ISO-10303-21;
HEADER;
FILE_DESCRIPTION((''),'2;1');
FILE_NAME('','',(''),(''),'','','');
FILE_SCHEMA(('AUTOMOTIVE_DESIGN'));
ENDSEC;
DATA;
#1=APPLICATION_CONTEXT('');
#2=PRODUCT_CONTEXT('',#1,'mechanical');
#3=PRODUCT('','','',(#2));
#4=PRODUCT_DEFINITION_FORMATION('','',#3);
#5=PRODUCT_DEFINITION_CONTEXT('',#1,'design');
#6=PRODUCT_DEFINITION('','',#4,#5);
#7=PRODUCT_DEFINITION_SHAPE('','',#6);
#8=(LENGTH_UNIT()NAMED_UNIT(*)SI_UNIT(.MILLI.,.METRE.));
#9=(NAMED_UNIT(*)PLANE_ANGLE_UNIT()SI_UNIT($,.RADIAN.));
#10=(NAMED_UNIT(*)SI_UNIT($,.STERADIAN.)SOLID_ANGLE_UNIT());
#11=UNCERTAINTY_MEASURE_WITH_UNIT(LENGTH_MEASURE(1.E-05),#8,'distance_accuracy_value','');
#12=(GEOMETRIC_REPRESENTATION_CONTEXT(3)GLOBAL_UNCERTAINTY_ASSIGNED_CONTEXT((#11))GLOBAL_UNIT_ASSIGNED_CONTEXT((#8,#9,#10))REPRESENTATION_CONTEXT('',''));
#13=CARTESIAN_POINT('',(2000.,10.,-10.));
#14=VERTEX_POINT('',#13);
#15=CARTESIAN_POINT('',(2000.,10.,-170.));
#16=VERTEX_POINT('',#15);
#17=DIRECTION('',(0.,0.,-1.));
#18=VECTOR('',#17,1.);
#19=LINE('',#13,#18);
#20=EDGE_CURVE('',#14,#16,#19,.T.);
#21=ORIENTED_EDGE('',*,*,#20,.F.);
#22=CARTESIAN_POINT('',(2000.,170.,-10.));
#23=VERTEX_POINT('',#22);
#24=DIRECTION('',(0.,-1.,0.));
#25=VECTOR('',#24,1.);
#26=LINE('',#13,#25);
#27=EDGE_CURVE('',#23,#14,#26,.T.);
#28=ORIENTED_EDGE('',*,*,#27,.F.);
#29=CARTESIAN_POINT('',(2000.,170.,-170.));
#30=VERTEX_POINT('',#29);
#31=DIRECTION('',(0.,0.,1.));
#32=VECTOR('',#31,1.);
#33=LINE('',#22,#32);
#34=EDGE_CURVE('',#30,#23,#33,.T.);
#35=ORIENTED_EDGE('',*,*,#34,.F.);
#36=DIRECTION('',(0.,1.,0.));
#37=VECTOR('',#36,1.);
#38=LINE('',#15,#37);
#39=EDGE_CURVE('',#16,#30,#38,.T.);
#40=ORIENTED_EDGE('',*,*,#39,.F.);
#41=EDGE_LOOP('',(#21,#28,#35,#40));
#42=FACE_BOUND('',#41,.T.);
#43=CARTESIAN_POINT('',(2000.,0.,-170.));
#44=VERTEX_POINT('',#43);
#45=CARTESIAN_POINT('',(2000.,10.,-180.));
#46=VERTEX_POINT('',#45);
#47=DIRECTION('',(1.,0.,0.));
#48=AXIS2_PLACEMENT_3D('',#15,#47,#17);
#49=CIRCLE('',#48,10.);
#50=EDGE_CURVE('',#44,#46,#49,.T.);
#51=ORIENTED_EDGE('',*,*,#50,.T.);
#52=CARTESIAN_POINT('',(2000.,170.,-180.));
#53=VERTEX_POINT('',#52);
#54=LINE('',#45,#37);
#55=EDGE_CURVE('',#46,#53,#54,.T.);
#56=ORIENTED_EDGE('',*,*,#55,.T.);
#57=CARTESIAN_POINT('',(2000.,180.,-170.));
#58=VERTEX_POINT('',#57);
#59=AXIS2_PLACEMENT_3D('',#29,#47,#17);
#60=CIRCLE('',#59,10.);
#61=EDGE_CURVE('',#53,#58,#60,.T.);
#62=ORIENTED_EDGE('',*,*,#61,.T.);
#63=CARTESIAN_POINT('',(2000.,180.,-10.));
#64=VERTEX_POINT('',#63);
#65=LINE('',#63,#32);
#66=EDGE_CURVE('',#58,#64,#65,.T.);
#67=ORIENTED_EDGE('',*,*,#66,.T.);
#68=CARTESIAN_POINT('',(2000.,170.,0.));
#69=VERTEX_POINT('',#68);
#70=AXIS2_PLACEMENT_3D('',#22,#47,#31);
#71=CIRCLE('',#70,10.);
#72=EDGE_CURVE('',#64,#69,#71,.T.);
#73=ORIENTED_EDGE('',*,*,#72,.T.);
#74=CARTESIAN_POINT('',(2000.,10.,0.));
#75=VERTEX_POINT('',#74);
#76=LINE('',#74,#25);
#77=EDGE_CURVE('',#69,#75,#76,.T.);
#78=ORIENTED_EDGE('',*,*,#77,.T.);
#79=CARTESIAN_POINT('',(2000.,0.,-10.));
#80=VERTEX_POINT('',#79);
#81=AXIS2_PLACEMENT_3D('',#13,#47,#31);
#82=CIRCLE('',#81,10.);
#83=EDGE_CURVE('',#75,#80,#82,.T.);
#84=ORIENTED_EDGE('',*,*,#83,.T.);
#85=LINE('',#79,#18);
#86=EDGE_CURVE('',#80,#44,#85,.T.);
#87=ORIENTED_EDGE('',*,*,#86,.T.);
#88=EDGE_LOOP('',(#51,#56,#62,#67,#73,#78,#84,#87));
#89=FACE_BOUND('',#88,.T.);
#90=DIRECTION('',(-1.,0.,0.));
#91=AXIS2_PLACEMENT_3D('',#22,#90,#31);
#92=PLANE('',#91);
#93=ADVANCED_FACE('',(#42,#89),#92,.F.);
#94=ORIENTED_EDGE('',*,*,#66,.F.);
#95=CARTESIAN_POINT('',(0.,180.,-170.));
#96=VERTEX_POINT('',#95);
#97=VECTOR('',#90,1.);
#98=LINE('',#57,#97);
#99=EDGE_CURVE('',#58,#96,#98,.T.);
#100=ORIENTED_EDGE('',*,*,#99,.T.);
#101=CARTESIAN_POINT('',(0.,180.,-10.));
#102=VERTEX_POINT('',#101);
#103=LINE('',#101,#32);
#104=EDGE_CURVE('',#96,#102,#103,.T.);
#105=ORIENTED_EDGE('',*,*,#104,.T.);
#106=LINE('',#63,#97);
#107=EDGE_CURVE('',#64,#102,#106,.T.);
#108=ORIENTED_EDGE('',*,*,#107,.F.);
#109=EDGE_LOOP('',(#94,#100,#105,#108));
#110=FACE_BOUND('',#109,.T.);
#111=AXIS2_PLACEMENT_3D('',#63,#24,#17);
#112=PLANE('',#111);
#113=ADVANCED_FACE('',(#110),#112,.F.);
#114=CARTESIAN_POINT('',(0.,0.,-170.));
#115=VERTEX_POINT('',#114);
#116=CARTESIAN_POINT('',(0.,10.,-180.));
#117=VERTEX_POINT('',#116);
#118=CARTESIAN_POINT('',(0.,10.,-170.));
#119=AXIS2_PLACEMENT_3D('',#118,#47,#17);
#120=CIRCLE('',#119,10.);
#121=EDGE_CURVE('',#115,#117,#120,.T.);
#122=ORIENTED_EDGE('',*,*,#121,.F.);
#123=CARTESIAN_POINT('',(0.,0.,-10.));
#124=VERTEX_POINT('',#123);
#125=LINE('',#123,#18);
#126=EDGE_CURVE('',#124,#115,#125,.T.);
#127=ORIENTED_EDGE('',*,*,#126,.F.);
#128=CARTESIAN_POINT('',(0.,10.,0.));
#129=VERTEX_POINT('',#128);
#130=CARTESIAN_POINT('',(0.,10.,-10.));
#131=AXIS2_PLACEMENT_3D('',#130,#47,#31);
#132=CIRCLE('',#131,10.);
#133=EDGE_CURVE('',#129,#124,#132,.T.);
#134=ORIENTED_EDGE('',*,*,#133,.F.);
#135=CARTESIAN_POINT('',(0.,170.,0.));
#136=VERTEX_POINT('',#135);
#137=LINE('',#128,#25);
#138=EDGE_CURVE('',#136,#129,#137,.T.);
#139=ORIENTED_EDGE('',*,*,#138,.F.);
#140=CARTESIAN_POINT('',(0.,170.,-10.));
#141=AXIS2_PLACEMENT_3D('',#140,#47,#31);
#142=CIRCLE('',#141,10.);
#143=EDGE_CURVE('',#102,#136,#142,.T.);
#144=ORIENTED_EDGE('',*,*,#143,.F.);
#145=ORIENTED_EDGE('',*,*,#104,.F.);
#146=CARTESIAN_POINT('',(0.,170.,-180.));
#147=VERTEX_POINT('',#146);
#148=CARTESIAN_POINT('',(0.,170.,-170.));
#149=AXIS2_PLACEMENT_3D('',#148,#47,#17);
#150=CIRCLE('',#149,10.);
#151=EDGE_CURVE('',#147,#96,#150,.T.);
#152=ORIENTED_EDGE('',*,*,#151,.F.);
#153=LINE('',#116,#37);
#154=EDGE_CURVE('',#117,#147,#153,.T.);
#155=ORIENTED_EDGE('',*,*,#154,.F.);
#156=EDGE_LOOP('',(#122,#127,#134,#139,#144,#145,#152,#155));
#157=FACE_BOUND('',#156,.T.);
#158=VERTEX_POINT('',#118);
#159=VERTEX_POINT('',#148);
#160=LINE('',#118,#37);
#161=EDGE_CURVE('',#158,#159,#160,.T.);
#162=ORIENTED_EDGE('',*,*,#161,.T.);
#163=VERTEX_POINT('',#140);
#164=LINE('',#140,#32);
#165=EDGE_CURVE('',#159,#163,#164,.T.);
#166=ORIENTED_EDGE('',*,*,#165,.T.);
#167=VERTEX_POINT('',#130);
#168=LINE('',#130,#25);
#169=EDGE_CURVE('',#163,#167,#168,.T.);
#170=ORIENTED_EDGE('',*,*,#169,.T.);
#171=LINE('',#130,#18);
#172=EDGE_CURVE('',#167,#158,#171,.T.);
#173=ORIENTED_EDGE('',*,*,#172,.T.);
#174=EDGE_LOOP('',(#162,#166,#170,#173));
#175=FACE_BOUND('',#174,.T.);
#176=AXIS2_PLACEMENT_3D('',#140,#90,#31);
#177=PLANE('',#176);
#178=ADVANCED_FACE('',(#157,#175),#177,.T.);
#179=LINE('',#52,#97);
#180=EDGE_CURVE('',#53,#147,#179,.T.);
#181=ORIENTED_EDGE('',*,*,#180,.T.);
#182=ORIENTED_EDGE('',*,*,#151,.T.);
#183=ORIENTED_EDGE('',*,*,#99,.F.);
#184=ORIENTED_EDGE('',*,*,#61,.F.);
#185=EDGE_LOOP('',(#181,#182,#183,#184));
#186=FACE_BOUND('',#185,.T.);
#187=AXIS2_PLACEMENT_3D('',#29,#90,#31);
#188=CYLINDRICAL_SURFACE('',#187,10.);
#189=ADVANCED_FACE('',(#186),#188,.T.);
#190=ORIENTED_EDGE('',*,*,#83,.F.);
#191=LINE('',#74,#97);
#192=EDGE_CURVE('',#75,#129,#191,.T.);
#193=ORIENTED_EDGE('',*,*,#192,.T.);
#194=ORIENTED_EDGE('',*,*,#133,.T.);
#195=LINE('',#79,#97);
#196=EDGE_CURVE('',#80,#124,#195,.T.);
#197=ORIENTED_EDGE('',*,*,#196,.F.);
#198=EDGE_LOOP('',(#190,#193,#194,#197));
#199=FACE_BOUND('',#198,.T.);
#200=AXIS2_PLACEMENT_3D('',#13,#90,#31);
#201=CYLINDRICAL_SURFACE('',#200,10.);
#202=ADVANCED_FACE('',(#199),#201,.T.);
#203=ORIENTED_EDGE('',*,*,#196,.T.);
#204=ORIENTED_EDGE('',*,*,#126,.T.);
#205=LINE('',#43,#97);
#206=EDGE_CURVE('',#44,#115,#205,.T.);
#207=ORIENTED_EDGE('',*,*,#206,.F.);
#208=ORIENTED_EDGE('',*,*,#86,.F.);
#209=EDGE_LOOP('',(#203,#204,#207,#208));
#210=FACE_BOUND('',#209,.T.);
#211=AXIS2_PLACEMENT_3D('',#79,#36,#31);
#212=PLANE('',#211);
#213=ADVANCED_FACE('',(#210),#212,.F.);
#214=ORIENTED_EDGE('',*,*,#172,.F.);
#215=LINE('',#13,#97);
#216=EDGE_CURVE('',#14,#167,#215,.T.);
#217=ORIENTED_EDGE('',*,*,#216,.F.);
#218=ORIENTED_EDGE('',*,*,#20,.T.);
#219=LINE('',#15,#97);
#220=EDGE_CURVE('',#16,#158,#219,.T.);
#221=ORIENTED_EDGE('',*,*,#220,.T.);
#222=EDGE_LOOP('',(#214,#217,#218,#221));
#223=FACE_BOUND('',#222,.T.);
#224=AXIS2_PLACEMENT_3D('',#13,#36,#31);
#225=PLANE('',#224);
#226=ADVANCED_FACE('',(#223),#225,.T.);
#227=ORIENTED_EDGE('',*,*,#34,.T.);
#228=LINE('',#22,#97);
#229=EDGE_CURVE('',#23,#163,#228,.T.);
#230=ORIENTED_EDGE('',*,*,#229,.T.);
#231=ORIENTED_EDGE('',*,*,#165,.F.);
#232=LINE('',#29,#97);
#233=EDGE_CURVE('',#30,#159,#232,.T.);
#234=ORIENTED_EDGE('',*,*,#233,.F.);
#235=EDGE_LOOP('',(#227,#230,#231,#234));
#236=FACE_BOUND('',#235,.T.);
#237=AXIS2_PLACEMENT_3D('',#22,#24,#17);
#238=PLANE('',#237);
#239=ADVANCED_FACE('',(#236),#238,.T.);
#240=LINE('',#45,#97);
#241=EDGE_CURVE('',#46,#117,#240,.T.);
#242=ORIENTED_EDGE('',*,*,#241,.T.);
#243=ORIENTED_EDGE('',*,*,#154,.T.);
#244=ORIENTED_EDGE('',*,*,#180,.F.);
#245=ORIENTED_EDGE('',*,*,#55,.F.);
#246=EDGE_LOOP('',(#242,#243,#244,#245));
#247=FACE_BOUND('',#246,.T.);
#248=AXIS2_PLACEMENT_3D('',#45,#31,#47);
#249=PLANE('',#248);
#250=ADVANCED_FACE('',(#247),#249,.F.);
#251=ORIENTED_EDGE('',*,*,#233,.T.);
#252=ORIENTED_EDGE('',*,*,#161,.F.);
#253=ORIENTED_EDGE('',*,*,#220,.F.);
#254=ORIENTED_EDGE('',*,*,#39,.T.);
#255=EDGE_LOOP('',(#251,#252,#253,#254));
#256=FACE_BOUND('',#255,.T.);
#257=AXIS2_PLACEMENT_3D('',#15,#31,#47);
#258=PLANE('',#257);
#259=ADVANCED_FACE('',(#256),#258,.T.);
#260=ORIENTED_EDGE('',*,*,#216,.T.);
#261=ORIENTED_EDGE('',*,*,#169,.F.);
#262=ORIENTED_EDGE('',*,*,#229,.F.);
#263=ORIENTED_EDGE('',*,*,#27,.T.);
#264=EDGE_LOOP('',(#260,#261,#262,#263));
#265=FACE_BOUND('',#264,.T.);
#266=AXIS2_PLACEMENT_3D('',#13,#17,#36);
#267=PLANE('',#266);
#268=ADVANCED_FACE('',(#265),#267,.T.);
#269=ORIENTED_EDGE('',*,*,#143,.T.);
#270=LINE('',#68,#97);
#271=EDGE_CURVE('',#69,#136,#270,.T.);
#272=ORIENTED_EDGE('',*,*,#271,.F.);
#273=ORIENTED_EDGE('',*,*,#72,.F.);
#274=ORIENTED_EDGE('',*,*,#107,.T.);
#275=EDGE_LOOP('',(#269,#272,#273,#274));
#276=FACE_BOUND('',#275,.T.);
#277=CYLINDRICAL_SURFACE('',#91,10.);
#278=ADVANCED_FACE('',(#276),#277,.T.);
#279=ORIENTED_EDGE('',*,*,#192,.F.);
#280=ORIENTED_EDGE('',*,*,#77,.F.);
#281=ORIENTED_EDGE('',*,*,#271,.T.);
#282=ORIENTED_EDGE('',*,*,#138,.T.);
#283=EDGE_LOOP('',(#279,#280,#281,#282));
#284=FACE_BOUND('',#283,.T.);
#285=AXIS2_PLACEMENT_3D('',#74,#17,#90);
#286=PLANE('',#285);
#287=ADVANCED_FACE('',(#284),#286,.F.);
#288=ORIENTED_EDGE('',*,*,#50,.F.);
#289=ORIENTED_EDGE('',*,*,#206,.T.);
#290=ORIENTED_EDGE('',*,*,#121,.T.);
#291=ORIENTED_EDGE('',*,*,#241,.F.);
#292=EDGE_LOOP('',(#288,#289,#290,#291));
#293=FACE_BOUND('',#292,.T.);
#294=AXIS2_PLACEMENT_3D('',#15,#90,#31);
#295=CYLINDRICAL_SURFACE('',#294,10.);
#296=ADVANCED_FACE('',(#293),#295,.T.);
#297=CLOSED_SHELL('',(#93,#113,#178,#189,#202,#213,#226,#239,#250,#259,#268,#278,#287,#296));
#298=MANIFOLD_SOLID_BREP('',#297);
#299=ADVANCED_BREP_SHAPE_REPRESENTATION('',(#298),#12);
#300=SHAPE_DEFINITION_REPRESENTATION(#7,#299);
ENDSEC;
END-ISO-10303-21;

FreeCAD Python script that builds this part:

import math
import FreeCAD as App
import Part
import Sketcher
Q = App.Units.Quantity

doc = App.newDocument("Part")
body = doc.addObject("PartDesign::Body", "Body")

# Sketch on YZ plane
sketch1 = body.newObject("Sketcher::SketchObject", "Sketch")
sketch1.AttachmentSupport = (doc.getObject("YZ_Plane"), [""])
sketch1.MapMode = "FlatFace"
sketch1.addGeometry(Part.LineSegment(App.Vector(0, -10, 0), App.Vector(0, -170, 0)), False)
sketch1.addGeometry(Part.ArcOfCircle(Part.Circle(App.Vector(10, -170, 0), App.Vector(0, 0, 1), 10), math.radians(180), math.radians(270)), False)
sketch1.addGeometry(Part.LineSegment(App.Vector(10, -180, 0), App.Vector(170, -180, 0)), False)
sketch1.addGeometry(Part.ArcOfCircle(Part.Circle(App.Vector(170, -170, 0), App.Vector(0, 0, 1), 10), math.radians(-90), math.radians(0)), False)
sketch1.addGeometry(Part.LineSegment(App.Vector(180, -170, 0), App.Vector(180, -10, 0)), False)
sketch1.addGeometry(Part.ArcOfCircle(Part.Circle(App.Vector(170, -10, 0), App.Vector(0, 0, 1), 10), math.radians(0), math.radians(90)), False)
sketch1.addGeometry(Part.LineSegment(App.Vector(170, 0, 0), App.Vector(10, 0, 0)), False)
sketch1.addGeometry(Part.ArcOfCircle(Part.Circle(App.Vector(10, -10, 0), App.Vector(0, 0, 1), 10), math.radians(90), math.radians(180)), False)
sketch1.addGeometry(Part.LineSegment(App.Vector(10, -170, 0), App.Vector(10, -10, 0)), False)
sketch1.addGeometry(Part.LineSegment(App.Vector(10, -10, 0), App.Vector(170, -10, 0)), False)
sketch1.addGeometry(Part.LineSegment(App.Vector(170, -10, 0), App.Vector(170, -170, 0)), False)
sketch1.addGeometry(Part.LineSegment(App.Vector(170, -170, 0), App.Vector(10, -170, 0)), False)
sketch1.addConstraint(Sketcher.Constraint("Tangent", 0, 2, 1, 1))
sketch1.addConstraint(Sketcher.Constraint("Tangent", 1, 2, 2, 1))
sketch1.addConstraint(Sketcher.Constraint("Tangent", 2, 2, 3, 1))
sketch1.addConstraint(Sketcher.Constraint("Tangent", 3, 2, 4, 1))
sketch1.addConstraint(Sketcher.Constraint("Tangent", 4, 2, 5, 1))
sketch1.addConstraint(Sketcher.Constraint("Tangent", 5, 2, 6, 1))
sketch1.addConstraint(Sketcher.Constraint("Tangent", 6, 2, 7, 1))
sketch1.addConstraint(Sketcher.Constraint("Tangent", 7, 2, 0, 1))
sketch1.addConstraint(Sketcher.Constraint("Coincident", 8, 2, 9, 1))
sketch1.addConstraint(Sketcher.Constraint("Coincident", 9, 2, 10, 1))
sketch1.addConstraint(Sketcher.Constraint("Coincident", 10, 2, 11, 1))
sketch1.addConstraint(Sketcher.Constraint("Coincident", 11, 2, 8, 1))
sketch1.addConstraint(Sketcher.Constraint("Vertical", 0))
sketch1.addConstraint(Sketcher.Constraint("Horizontal", 2))
sketch1.addConstraint(Sketcher.Constraint("Vertical", 4))
sketch1.addConstraint(Sketcher.Constraint("Horizontal", 6))
sketch1.addConstraint(Sketcher.Constraint("Vertical", 8))
sketch1.addConstraint(Sketcher.Constraint("Horizontal", 9))
sketch1.addConstraint(Sketcher.Constraint("Vertical", 10))
sketch1.addConstraint(Sketcher.Constraint("Horizontal", 11))
sketch1.addConstraint(Sketcher.Constraint("Coincident", 8, 2, 7, 3))
sketch1.addConstraint(Sketcher.Constraint("Coincident", 9, 2, 5, 3))
sketch1.addConstraint(Sketcher.Constraint("Coincident", 10, 2, 3, 3))
sketch1.addConstraint(Sketcher.Constraint("Equal", 1, 3))
sketch1.addConstraint(Sketcher.Constraint("PointOnObject", 0, 2, -2))
sketch1.addConstraint(Sketcher.Constraint("PointOnObject", 5, 2, -1))
sketch1.addConstraint(Sketcher.Constraint("Equal", 11, 0))
sketch1.addConstraint(Sketcher.Constraint("Radius", 1, Q("10 mm")))
sketch1.addConstraint(Sketcher.Constraint("DistanceX", 2, 1, 2, 2, Q("160 mm")))
pad1 = body.newObject("PartDesign::Pad", "Pad")
pad1.Profile = sketch1
pad1.Length = 2000

doc.recompute()
